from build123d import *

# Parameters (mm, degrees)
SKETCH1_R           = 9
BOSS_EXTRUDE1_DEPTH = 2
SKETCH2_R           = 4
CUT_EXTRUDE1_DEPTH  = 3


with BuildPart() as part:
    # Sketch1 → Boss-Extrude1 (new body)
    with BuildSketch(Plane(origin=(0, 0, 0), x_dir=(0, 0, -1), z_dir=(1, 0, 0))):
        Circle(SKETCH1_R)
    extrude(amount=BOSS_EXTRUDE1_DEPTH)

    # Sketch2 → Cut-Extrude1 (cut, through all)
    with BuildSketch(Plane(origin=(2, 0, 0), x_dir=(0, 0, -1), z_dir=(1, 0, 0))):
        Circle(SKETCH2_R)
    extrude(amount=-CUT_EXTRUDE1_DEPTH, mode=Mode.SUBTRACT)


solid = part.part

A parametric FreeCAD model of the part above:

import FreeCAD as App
import Part
import Sketcher
from FreeCAD import Vector

doc = App.newDocument("Part")
body = doc.addObject("PartDesign::Body", "Body")

sketch1 = body.newObject("Sketcher::SketchObject", "Sketch")
sketch1.AttachmentSupport = (doc.getObject("YZ_Plane"), [""])
sketch1.MapMode = "FlatFace"
sketch1.addGeometry(Part.Circle(Vector(0, 0, 0), Vector(0, 0, 1), 9), False)
sketch1.addConstraint(Sketcher.Constraint("Coincident", 0, 3, -1, 1))
sketch1.addConstraint(Sketcher.Constraint("Diameter", 0, 18.0))
pad1 = body.newObject("PartDesign::Pad", "Pad")
pad1.Profile = sketch1
pad1.Length = 2

sketch2 = body.newObject("Sketcher::SketchObject", "Sketch001")
sketch2.AttachmentSupport = (doc.getObject("YZ_Plane"), [""])
sketch2.MapMode = "FlatFace"
sketch2.AttachmentOffset = App.Placement(Vector(0, 0, 2), App.Rotation())
sketch2.addGeometry(Part.Circle(Vector(0, 0, 0), Vector(0, 0, 1), 4), False)
sketch2.addConstraint(Sketcher.Constraint("Coincident", 0, 3, -1, 1))
sketch2.addConstraint(Sketcher.Constraint("Diameter", 0, 8.0))
pocket1 = body.newObject("PartDesign::Pocket", "Pocket")
pocket1.Profile = sketch2
pocket1.Type = "ThroughAll"

doc.recompute()
